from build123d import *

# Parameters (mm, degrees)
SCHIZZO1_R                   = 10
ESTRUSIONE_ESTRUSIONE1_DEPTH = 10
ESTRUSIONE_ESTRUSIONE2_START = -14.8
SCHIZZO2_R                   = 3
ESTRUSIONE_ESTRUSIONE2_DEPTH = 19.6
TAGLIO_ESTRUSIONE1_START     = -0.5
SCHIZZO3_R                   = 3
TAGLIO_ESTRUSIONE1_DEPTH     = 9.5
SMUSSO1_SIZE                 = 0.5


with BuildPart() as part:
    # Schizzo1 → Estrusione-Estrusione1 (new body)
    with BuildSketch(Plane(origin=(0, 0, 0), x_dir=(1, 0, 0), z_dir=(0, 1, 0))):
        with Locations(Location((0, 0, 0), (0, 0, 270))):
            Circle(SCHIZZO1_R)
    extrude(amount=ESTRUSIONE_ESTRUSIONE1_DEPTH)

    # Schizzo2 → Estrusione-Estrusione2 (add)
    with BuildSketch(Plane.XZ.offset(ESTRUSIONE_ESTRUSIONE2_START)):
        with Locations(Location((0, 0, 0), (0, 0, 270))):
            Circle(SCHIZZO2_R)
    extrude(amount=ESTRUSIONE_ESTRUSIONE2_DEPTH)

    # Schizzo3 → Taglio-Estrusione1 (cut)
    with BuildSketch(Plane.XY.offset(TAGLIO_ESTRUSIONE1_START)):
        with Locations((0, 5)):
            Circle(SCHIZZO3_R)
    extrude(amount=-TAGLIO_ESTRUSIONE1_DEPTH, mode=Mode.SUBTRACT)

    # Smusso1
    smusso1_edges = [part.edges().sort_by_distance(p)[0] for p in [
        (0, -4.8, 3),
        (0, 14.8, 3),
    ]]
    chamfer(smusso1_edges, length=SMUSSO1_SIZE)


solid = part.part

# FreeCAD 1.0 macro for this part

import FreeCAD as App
import Part
import Sketcher


def edges_at(feature, points):
    """Names of the edges that pass closest to the given points."""
    edges = feature.Shape.Edges
    near = lambda p: min(range(len(edges)), key=lambda i: edges[i].distToShape(Part.Vertex(*p))[0])
    return sorted({f"Edge{near(p) + 1}" for p in points})

doc = App.newDocument("Part")
body = doc.addObject("PartDesign::Body", "Body")

sketch1 = body.newObject("Sketcher::SketchObject", "Sketch")
sketch1.AttachmentSupport = (doc.getObject("XZ_Plane"), [""])
sketch1.MapMode = "FlatFace"
sketch1.addGeometry(Part.Circle(App.Vector(0, 0, 0), App.Vector(0, 0, 1), 10), False)
sketch1.addConstraint([
    Sketcher.Constraint("Coincident", 0, 3, -1, 1),
    Sketcher.Constraint("Diameter", 0, 20.0),
])
pad1 = body.newObject("PartDesign::Pad", "Pad")
pad1.Profile = sketch1
pad1.Length = 10
pad1.Reversed = True

sketch2 = body.newObject("Sketcher::SketchObject", "Sketch001")
sketch2.AttachmentSupport = (doc.getObject("XZ_Plane"), [""])
sketch2.MapMode = "FlatFace"
sketch2.AttachmentOffset = App.Placement(App.Vector(0, 0, -14.8), App.Rotation())
sketch2.addGeometry(Part.Circle(App.Vector(0, 0, 0), App.Vector(0, 0, 1), 3), False)
sketch2.addConstraint([
    Sketcher.Constraint("Coincident", 0, 3, -1, 1),
    Sketcher.Constraint("Diameter", 0, 6.0),
])
pad2 = body.newObject("PartDesign::Pad", "Pad001")
pad2.Profile = sketch2
pad2.Length = 19.6

sketch3 = body.newObject("Sketcher::SketchObject", "Sketch002")
sketch3.AttachmentSupport = (doc.getObject("XY_Plane"), [""])
sketch3.MapMode = "FlatFace"
sketch3.AttachmentOffset = App.Placement(App.Vector(0, 0, -0.5), App.Rotation())
sketch3.addGeometry(Part.Circle(App.Vector(0, 5, 0), App.Vector(0, 0, 1), 3), False)
sketch3.addConstraint([
    Sketcher.Constraint("PointOnObject", 0, 3, -2),
    Sketcher.Constraint("Diameter", 0, 6.0),
    Sketcher.Constraint("DistanceY", -1, 1, 0, 3, 5.0),
])
pocket1 = body.newObject("PartDesign::Pocket", "Pocket")
pocket1.Profile = sketch3
pocket1.Length = 9.5
doc.recompute()

chamfer = body.newObject("PartDesign::Chamfer", "Chamfer")
chamfer.Base = (pocket1, edges_at(pocket1, [(0, -4.8, 3), (0, 14.8, 3)]))
chamfer.Size = 0.5

doc.recompute()
